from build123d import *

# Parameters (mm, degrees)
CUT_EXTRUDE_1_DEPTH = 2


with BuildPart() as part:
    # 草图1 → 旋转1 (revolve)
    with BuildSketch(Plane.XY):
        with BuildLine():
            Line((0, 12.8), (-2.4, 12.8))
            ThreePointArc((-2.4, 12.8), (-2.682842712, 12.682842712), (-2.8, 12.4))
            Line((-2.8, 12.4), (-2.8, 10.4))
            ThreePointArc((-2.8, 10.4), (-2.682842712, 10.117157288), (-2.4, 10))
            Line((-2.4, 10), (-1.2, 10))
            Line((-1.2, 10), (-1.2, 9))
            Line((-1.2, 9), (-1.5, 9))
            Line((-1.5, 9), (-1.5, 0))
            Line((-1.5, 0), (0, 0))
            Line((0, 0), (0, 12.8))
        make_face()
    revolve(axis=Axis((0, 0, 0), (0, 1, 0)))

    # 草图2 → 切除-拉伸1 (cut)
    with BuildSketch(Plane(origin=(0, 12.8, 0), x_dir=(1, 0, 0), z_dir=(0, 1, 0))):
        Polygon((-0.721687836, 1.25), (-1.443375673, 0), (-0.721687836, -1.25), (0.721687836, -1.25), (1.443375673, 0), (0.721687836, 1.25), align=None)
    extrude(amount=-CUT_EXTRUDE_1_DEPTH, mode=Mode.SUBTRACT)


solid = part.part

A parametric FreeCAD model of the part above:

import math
import FreeCAD as App
import Part
import Sketcher
Q = App.Units.Quantity


def add_polygon(sketch, points):
    """Adds a closed chain of lines whose ends are joined by coincident constraints."""
    first, n = sketch.GeometryCount, len(points)
    for a, b in zip(points, points[1:] + points[:1]):
        sketch.addGeometry(Part.LineSegment(App.Vector(*a, 0), App.Vector(*b, 0)), False)
    for i in range(n):
        sketch.addConstraint(Sketcher.Constraint("Coincident", first + i, 2, first + (i + 1) % n, 1))

doc = App.newDocument("Part")
body = doc.addObject("PartDesign::Body", "Body")

sketch1 = body.newObject("Sketcher::SketchObject", "Sketch")
sketch1.AttachmentSupport = (doc.getObject("XY_Plane"), [""])
sketch1.MapMode = "FlatFace"
sketch1.addGeometry([
    Part.LineSegment(App.Vector(0, 12.8, 0), App.Vector(-2.4, 12.8, 0)),
    Part.ArcOfCircle(Part.Circle(App.Vector(-2.4, 12.4, 0), App.Vector(0, 0, 1), 0.4), math.radians(90), math.radians(180)),
    Part.LineSegment(App.Vector(-2.8, 12.4, 0), App.Vector(-2.8, 10.4, 0)),
    Part.ArcOfCircle(Part.Circle(App.Vector(-2.4, 10.4, 0), App.Vector(0, 0, 1), 0.4), math.radians(-180), math.radians(-90)),
    Part.LineSegment(App.Vector(-2.4, 10, 0), App.Vector(-1.2, 10, 0)),
    Part.LineSegment(App.Vector(-1.2, 10, 0), App.Vector(-1.2, 9, 0)),
    Part.LineSegment(App.Vector(-1.2, 9, 0), App.Vector(-1.5, 9, 0)),
    Part.LineSegment(App.Vector(-1.5, 9, 0), App.Vector(-1.5, 0, 0)),
    Part.LineSegment(App.Vector(-1.5, 0, 0), App.Vector(0, 0, 0)),
    Part.LineSegment(App.Vector(0, 0, 0), App.Vector(0, 12.8, 0)),
], False)
sketch1.addConstraint([
    Sketcher.Constraint("Tangent", 0, 2, 1, 1),
    Sketcher.Constraint("Tangent", 1, 2, 2, 1),
    Sketcher.Constraint("Tangent", 2, 2, 3, 1),
    Sketcher.Constraint("Tangent", 3, 2, 4, 1),
    Sketcher.Constraint("Coincident", 4, 2, 5, 1),
    Sketcher.Constraint("Coincident", 5, 2, 6, 1),
    Sketcher.Constraint("Coincident", 6, 2, 7, 1),
    Sketcher.Constraint("Coincident", 7, 2, 8, 1),
    Sketcher.Constraint("Coincident", 8, 2, 9, 1),
    Sketcher.Constraint("Coincident", 9, 2, 0, 1),
    Sketcher.Constraint("Horizontal", 0),
    Sketcher.Constraint("Vertical", 2),
    Sketcher.Constraint("Horizontal", 4),
    Sketcher.Constraint("Vertical", 5),
    Sketcher.Constraint("Horizontal", 6),
    Sketcher.Constraint("Vertical", 7),
    Sketcher.Constraint("Horizontal", 8),
    Sketcher.Constraint("Vertical", 9),
    Sketcher.Constraint("Coincident", 8, 2, -1, 1),
    Sketcher.Constraint("Equal", 1, 3),
    Sketcher.Constraint("Radius", 1, 0.4),
    Sketcher.Constraint("DistanceY", 2, 2, 2, 1, 2.0),
    Sketcher.Constraint("DistanceY", 5, 2, 5, 1, 1.0),
    Sketcher.Constraint("DistanceY", 7, 2, 7, 1, 9.0),
    Sketcher.Constraint("DistanceX", 0, 2, 0, 1, 2.4),
    Sketcher.Constraint("DistanceX", 4, 1, 4, 2, 1.2),
    Sketcher.Constraint("DistanceX", 6, 2, 6, 1, 0.3),
])
revolution = body.newObject("PartDesign::Revolution", "Revolution")
revolution.Profile = sketch1
revolution.ReferenceAxis = (sketch1, ["V_Axis"])
revolution.Angle = 360

sketch2 = body.newObject("Sketcher::SketchObject", "Sketch001")
sketch2.AttachmentSupport = (doc.getObject("XZ_Plane"), [""])
sketch2.MapMode = "FlatFace"
sketch2.AttachmentOffset = App.Placement(App.Vector(0, 0, -12.8), App.Rotation())
add_polygon(sketch2, [(-0.7, -1.2), (-1.4, 0), (-0.7, 1.2), (0.7, 1.2), (1.4, 0), (0.7, -1.2)])
sketch2.addConstraint([
    Sketcher.Constraint("Horizontal", 2),
    Sketcher.Constraint("Horizontal", 5),
    Sketcher.Constraint("Symmetric", 0, 2, 3, 2, -1, 1),
    Sketcher.Constraint("Symmetric", 1, 2, 4, 2, -1, 1),
    Sketcher.Constraint("PointOnObject", 0, 2, -1),
    Sketcher.Constraint("Parallel", 0, 3),
    Sketcher.Constraint("Vertical", 2, 2, 4, 2),
    Sketcher.Constraint("Angle", 0, Q("120 deg")),
    Sketcher.Constraint("DistanceY", 4, 2, 2, 2, 2.5),
    Sketcher.Constraint("DistanceX", 2, 1, 2, 2, 1.443376),
])
pocket1 = body.newObject("PartDesign::Pocket", "Pocket")
pocket1.Profile = sketch2
pocket1.Length = 2
pocket1.Reversed = True

doc.recompute()
